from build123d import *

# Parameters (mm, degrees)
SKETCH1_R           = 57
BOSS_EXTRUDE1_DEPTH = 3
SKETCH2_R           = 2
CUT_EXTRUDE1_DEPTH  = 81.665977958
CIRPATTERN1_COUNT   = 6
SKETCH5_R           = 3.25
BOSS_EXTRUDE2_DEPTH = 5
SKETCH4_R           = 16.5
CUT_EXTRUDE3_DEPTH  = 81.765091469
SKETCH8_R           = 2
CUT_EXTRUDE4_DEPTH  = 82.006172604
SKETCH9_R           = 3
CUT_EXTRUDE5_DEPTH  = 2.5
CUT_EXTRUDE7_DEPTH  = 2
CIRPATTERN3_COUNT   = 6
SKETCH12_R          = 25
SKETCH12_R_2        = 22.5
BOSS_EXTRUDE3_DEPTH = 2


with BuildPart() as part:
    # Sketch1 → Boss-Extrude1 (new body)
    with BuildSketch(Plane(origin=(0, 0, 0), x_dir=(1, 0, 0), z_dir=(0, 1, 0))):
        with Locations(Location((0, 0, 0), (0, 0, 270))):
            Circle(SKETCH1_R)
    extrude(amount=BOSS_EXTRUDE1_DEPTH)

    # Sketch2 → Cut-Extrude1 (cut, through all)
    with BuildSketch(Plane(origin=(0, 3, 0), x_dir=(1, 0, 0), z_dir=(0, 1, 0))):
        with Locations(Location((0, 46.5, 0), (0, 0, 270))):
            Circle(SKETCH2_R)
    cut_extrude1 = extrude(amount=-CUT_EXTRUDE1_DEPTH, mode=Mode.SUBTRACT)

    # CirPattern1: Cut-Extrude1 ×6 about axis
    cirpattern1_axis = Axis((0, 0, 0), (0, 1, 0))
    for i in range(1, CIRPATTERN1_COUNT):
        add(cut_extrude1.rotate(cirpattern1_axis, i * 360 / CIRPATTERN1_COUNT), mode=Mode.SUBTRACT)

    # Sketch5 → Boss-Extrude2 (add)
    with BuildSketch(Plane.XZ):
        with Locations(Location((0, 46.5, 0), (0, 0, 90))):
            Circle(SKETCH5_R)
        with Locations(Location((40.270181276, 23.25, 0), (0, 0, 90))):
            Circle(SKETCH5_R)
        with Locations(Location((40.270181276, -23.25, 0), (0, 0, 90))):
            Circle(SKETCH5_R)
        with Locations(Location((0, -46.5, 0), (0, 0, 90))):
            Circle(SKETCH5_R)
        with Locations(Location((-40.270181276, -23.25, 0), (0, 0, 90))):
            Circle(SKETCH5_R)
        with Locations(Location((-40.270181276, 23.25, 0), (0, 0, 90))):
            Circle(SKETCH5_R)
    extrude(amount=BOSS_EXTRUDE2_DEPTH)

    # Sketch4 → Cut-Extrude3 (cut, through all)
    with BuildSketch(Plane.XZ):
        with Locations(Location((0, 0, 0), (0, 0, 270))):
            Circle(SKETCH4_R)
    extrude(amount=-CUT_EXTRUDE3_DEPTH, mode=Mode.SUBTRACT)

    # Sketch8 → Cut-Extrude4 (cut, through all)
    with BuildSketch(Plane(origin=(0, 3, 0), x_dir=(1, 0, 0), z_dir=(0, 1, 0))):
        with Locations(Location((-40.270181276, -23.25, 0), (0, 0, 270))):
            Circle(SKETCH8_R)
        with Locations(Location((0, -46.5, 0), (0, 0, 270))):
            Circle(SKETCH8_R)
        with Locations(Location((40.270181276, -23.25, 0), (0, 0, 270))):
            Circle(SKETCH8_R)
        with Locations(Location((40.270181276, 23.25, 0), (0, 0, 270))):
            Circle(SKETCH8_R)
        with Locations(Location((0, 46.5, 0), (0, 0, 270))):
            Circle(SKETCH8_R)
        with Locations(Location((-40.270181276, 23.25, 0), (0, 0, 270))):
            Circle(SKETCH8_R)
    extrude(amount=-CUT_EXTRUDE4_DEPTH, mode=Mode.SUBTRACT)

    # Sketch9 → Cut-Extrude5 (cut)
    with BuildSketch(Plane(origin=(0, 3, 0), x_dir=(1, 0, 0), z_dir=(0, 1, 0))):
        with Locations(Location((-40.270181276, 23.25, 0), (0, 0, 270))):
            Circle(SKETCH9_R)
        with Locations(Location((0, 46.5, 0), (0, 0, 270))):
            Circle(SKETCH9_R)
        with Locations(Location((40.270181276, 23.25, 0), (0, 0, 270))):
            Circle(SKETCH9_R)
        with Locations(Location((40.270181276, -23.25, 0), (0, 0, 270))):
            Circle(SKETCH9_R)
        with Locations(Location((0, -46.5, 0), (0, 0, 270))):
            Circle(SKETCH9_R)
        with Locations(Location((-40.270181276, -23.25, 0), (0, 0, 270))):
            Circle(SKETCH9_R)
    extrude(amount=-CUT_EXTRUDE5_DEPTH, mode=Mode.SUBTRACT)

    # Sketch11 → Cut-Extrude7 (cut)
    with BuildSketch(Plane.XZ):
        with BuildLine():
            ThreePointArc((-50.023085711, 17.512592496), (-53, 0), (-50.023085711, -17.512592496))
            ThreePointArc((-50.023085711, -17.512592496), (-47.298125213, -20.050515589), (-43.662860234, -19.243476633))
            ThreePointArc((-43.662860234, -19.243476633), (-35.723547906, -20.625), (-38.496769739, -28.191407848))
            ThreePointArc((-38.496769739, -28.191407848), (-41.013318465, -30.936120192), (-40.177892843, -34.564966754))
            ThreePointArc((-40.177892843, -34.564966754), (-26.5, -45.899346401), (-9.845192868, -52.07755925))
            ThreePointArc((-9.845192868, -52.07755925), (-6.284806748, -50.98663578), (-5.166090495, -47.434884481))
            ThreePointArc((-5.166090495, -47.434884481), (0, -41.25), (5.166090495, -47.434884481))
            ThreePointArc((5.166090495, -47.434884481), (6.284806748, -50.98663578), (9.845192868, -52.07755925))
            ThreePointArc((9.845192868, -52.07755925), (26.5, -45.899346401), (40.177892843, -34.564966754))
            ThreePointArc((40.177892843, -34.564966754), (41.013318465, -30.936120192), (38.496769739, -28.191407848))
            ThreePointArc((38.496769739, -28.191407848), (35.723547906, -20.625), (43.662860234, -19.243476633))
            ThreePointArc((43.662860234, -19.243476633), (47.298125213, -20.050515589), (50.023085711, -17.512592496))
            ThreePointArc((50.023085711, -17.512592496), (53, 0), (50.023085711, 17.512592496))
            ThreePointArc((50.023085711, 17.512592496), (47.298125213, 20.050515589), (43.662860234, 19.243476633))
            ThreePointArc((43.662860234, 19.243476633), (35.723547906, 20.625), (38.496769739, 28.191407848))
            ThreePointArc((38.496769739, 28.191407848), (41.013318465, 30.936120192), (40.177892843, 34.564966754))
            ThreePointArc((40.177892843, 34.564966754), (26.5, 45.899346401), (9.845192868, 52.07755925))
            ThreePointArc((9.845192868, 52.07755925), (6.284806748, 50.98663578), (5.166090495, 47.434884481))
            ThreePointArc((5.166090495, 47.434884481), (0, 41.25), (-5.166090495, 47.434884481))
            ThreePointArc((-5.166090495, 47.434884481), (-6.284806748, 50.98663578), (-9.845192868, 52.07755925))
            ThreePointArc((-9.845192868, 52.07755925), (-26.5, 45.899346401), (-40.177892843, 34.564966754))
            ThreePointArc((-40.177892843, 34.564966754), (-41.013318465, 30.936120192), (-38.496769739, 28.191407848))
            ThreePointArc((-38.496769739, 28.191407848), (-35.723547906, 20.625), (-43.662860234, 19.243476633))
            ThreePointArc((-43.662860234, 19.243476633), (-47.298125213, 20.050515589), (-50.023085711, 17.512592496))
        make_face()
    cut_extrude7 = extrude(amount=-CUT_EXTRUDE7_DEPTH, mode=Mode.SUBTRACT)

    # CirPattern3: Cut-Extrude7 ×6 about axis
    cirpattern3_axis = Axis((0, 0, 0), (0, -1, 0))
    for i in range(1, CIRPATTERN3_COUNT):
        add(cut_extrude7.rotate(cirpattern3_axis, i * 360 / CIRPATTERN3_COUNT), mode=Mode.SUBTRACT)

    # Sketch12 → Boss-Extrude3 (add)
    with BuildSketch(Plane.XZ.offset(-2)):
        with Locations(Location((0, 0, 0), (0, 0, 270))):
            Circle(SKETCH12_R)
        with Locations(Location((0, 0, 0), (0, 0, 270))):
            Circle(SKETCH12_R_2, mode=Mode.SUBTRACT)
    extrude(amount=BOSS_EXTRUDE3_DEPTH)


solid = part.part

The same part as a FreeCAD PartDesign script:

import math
import FreeCAD as App
import Part
import Sketcher

V = App.Vector

doc = App.newDocument("Part")
body = doc.addObject("PartDesign::Body", "Body")

# Sketch on XZ plane
sketch1 = body.newObject("Sketcher::SketchObject", "Sketch")
sketch1.AttachmentSupport = (doc.getObject("XZ_Plane"), [""])
sketch1.MapMode = "FlatFace"
sketch1.addGeometry(Part.Circle(V(0, 0, 0), V(0, 0, 1), 57), False)
sketch1.addConstraint([
    Sketcher.Constraint("Coincident", 0, 3, -1, 1),
    Sketcher.Constraint("Diameter", 0, 114.0),
])
pad1 = body.newObject("PartDesign::Pad", "Pad")
pad1.Profile = sketch1
pad1.Length = 3
pad1.Reversed = True

# Sketch on XZ plane
sketch2 = body.newObject("Sketcher::SketchObject", "Sketch001")
sketch2.AttachmentSupport = (doc.getObject("XZ_Plane"), [""])
sketch2.MapMode = "FlatFace"
sketch2.AttachmentOffset = App.Placement(V(0, 0, -3), App.Rotation())
sketch2.addGeometry(Part.Circle(V(0, -46.5, 0), V(0, 0, 1), 2), False)
sketch2.addConstraint([
    Sketcher.Constraint("PointOnObject", 0, 3, -2),
    Sketcher.Constraint("Diameter", 0, 4.0),
    Sketcher.Constraint("DistanceY", 0, 3, -1, 1, 46.5),
])
pocket1 = body.newObject("PartDesign::Pocket", "Pocket")
pocket1.Profile = sketch2
pocket1.Type = "ThroughAll"
pocket1.Reversed = True
doc.recompute()

polarpattern = body.newObject("PartDesign::PolarPattern", "PolarPattern")
polarpattern.Originals = [pocket1]
polarpattern.Axis = (doc.getObject("Y_Axis"), [""])
polarpattern.Angle = 360
polarpattern.Occurrences = 6
body.Tip = polarpattern

# Sketch on XZ plane
sketch3 = body.newObject("Sketcher::SketchObject", "Sketch002")
sketch3.AttachmentSupport = (doc.getObject("XZ_Plane"), [""])
sketch3.MapMode = "FlatFace"
sketch3.addGeometry([
    Part.Circle(V(0, 46.5, 0), V(0, 0, 1), 3.2),  # 0
    Part.Circle(V(40.3, 23.2, 0), V(0, 0, 1), 3.2),  # 1
    Part.Circle(V(40.3, -23.2, 0), V(0, 0, 1), 3.2),  # 2
    Part.Circle(V(0, -46.5, 0), V(0, 0, 1), 3.2),  # 3
    Part.Circle(V(-40.3, -23.2, 0), V(0, 0, 1), 3.2),  # 4
    Part.Circle(V(-40.3, 23.2, 0), V(0, 0, 1), 3.2),  # 5
], False)
sketch3.addConstraint([
    Sketcher.Constraint("Equal", 0, 1),
    Sketcher.Constraint("Equal", 1, 2),
    Sketcher.Constraint("Equal", 2, 3),
    Sketcher.Constraint("Equal", 3, 4),
    Sketcher.Constraint("Equal", 4, 5),
    Sketcher.Constraint("Symmetric", 0, 3, 3, 3, -1, 1),
    Sketcher.Constraint("Symmetric", 1, 3, 4, 3, -1, 1),
    Sketcher.Constraint("Symmetric", 2, 3, 5, 3, -1, 1),
    Sketcher.Constraint("Symmetric", 2, 3, 4, 3, -2),
    Sketcher.Constraint("PointOnObject", 0, 3, -2),
    Sketcher.Constraint("Diameter", 0, 6.5),
    Sketcher.Constraint("DistanceY", 3, 3, 0, 3, 93.0),
    Sketcher.Constraint("DistanceY", 2, 3, 1, 3, 46.5),
    Sketcher.Constraint("DistanceX", -1, 1, 1, 3, 40.270181),
])
pad2 = body.newObject("PartDesign::Pad", "Pad001")
pad2.Profile = sketch3
pad2.Length = 5

# Sketch on XZ plane
sketch4 = body.newObject("Sketcher::SketchObject", "Sketch003")
sketch4.AttachmentSupport = (doc.getObject("XZ_Plane"), [""])
sketch4.MapMode = "FlatFace"
sketch4.addGeometry(Part.Circle(V(0, 0, 0), V(0, 0, 1), 16), False)
sketch4.addConstraint([
    Sketcher.Constraint("Coincident", 0, 3, -1, 1),
    Sketcher.Constraint("Diameter", 0, 33.0),
])
pocket2 = body.newObject("PartDesign::Pocket", "Pocket001")
pocket2.Profile = sketch4
pocket2.Type = "ThroughAll"

# Sketch on XZ plane
sketch5 = body.newObject("Sketcher::SketchObject", "Sketch004")
sketch5.AttachmentSupport = (doc.getObject("XZ_Plane"), [""])
sketch5.MapMode = "FlatFace"
sketch5.AttachmentOffset = App.Placement(V(0, 0, -3), App.Rotation())
sketch5.addGeometry([
    Part.Circle(V(-40.3, 23.2, 0), V(0, 0, 1), 2),  # 0
    Part.Circle(V(0, 46.5, 0), V(0, 0, 1), 2),  # 1
    Part.Circle(V(40.3, 23.2, 0), V(0, 0, 1), 2),  # 2
    Part.Circle(V(40.3, -23.2, 0), V(0, 0, 1), 2),  # 3
    Part.Circle(V(0, -46.5, 0), V(0, 0, 1), 2),  # 4
    Part.Circle(V(-40.3, -23.2, 0), V(0, 0, 1), 2),  # 5
], False)
sketch5.addConstraint([
    Sketcher.Constraint("Equal", 0, 1),
    Sketcher.Constraint("Equal", 1, 2),
    Sketcher.Constraint("Equal", 2, 3),
    Sketcher.Constraint("Equal", 3, 4),
    Sketcher.Constraint("Equal", 4, 5),
    Sketcher.Constraint("Symmetric", 0, 3, 3, 3, -1, 1),
    Sketcher.Constraint("Symmetric", 1, 3, 4, 3, -1, 1),
    Sketcher.Constraint("Symmetric", 2, 3, 5, 3, -1, 1),
    Sketcher.Constraint("Symmetric", 0, 3, 2, 3, -2),
    Sketcher.Constraint("PointOnObject", 1, 3, -2),
    Sketcher.Constraint("Diameter", 0, 4.0),
    Sketcher.Constraint("DistanceY", 4, 3, 1, 3, 93.0),
    Sketcher.Constraint("DistanceY", 3, 3, 2, 3, 46.5),
    Sketcher.Constraint("DistanceX", 0, 3, -1, 1, 40.270181),
])
pocket3 = body.newObject("PartDesign::Pocket", "Pocket002")
pocket3.Profile = sketch5
pocket3.Type = "ThroughAll"
pocket3.Reversed = True

# Sketch on XZ plane
sketch6 = body.newObject("Sketcher::SketchObject", "Sketch005")
sketch6.AttachmentSupport = (doc.getObject("XZ_Plane"), [""])
sketch6.MapMode = "FlatFace"
sketch6.AttachmentOffset = App.Placement(V(0, 0, -3), App.Rotation())
sketch6.addGeometry([
    Part.Circle(V(-40.3, -23.2, 0), V(0, 0, 1), 3),  # 0
    Part.Circle(V(0, -46.5, 0), V(0, 0, 1), 3),  # 1
    Part.Circle(V(40.3, -23.2, 0), V(0, 0, 1), 3),  # 2
    Part.Circle(V(40.3, 23.2, 0), V(0, 0, 1), 3),  # 3
    Part.Circle(V(0, 46.5, 0), V(0, 0, 1), 3),  # 4
    Part.Circle(V(-40.3, 23.2, 0), V(0, 0, 1), 3),  # 5
], False)
sketch6.addConstraint([
    Sketcher.Constraint("Equal", 0, 1),
    Sketcher.Constraint("Equal", 1, 2),
    Sketcher.Constraint("Equal", 2, 3),
    Sketcher.Constraint("Equal", 3, 4),
    Sketcher.Constraint("Equal", 4, 5),
    Sketcher.Constraint("Symmetric", 0, 3, 3, 3, -1, 1),
    Sketcher.Constraint("Symmetric", 1, 3, 4, 3, -1, 1),
    Sketcher.Constraint("Symmetric", 2, 3, 5, 3, -1, 1),
    Sketcher.Constraint("Symmetric", 0, 3, 2, 3, -2),
    Sketcher.Constraint("PointOnObject", 1, 3, -2),
    Sketcher.Constraint("Diameter", 0, 6.0),
    Sketcher.Constraint("DistanceY", 1, 3, 4, 3, 93.0),
    Sketcher.Constraint("DistanceY", 2, 3, 3, 3, 46.5),
    Sketcher.Constraint("DistanceX", 0, 3, -1, 1, 40.270181),
])
pocket4 = body.newObject("PartDesign::Pocket", "Pocket003")
pocket4.Profile = sketch6
pocket4.Length = 2.5
pocket4.Reversed = True

# Sketch on XZ plane
sketch7 = body.newObject("Sketcher::SketchObject", "Sketch006")
sketch7.AttachmentSupport = (doc.getObject("XZ_Plane"), [""])
sketch7.MapMode = "FlatFace"
sketch7.addGeometry([
    Part.ArcOfCircle(Part.Circle(V(0, 0, 0), V(0, 0, 1), 53), math.radians(161), math.radians(199)),  # 0
    Part.ArcOfCircle(Part.Circle(V(-46.2, -16.2, 0), V(0, 0, 1), 4), math.radians(-161), math.radians(-50)),  # 1
    Part.ArcOfCircle(Part.Circle(V(-40.3, -23.2, 0), V(0, 0, 1), 5.2), math.radians(-70), math.radians(130)),  # 2
    Part.ArcOfCircle(Part.Circle(V(-37.1, -32, 0), V(0, 0, 1), 4), math.radians(110), math.radians(221)),  # 3
    Part.ArcOfCircle(Part.Circle(V(0, 0, 0), V(0, 0, 1), 53), math.radians(-139), math.radians(-101)),  # 4
    Part.ArcOfCircle(Part.Circle(V(-9.1, -48.1, 0), V(0, 0, 1), 4), math.radians(-101), math.radians(10)),  # 5
    Part.ArcOfCircle(Part.Circle(V(0, -46.5, 0), V(0, 0, 1), 5.2), math.radians(-10), math.radians(190)),  # 6
    Part.ArcOfCircle(Part.Circle(V(9.1, -48.1, 0), V(0, 0, 1), 4), math.radians(170), math.radians(281)),  # 7
    Part.ArcOfCircle(Part.Circle(V(0, 0, 0), V(0, 0, 1), 53), math.radians(-79), math.radians(-41)),  # 8
    Part.ArcOfCircle(Part.Circle(V(37.1, -32, 0), V(0, 0, 1), 4), math.radians(-41), math.radians(70)),  # 9
    Part.ArcOfCircle(Part.Circle(V(40.3, -23.2, 0), V(0, 0, 1), 5.2), math.radians(50), math.radians(250)),  # 10
    Part.ArcOfCircle(Part.Circle(V(46.2, -16.2, 0), V(0, 0, 1), 4), math.radians(-130), math.radians(-19)),  # 11
    Part.ArcOfCircle(Part.Circle(V(0, 0, 0), V(0, 0, 1), 53), math.radians(-19), math.radians(19)),  # 12
    Part.ArcOfCircle(Part.Circle(V(46.2, 16.2, 0), V(0, 0, 1), 4), math.radians(19), math.radians(130)),  # 13
    Part.ArcOfCircle(Part.Circle(V(40.3, 23.2, 0), V(0, 0, 1), 5.2), math.radians(110), math.radians(310)),  # 14
    Part.ArcOfCircle(Part.Circle(V(37.1, 32, 0), V(0, 0, 1), 4), math.radians(-70), math.radians(41)),  # 15
    Part.ArcOfCircle(Part.Circle(V(0, 0, 0), V(0, 0, 1), 53), math.radians(41), math.radians(79)),  # 16
    Part.ArcOfCircle(Part.Circle(V(9.1, 48.1, 0), V(0, 0, 1), 4), math.radians(79), math.radians(190)),  # 17
    Part.ArcOfCircle(Part.Circle(V(0, 46.5, 0), V(0, 0, 1), 5.2), math.radians(170), math.radians(370)),  # 18
    Part.ArcOfCircle(Part.Circle(V(-9.1, 48.1, 0), V(0, 0, 1), 4), math.radians(-10), math.radians(101)),  # 19
    Part.ArcOfCircle(Part.Circle(V(0, 0, 0), V(0, 0, 1), 53), math.radians(101), math.radians(139)),  # 20
    Part.ArcOfCircle(Part.Circle(V(-37.1, 32, 0), V(0, 0, 1), 4), math.radians(139), math.radians(250)),  # 21
    Part.ArcOfCircle(Part.Circle(V(-40.3, 23.2, 0), V(0, 0, 1), 5.2), math.radians(-130), math.radians(70)),  # 22
    Part.ArcOfCircle(Part.Circle(V(-46.2, 16.2, 0), V(0, 0, 1), 4), math.radians(50), math.radians(161)),  # 23
], False)
sketch7.addConstraint([
    Sketcher.Constraint("Tangent", 0, 2, 1, 1),
    Sketcher.Constraint("Tangent", 1, 2, 2, 2),
    Sketcher.Constraint("Tangent", 2, 1, 3, 1),
    Sketcher.Constraint("Tangent", 3, 2, 4, 1),
    Sketcher.Constraint("Tangent", 4, 2, 5, 1),
    Sketcher.Constraint("Tangent", 5, 2, 6, 2),
    Sketcher.Constraint("Tangent", 6, 1, 7, 1),
    Sketcher.Constraint("Tangent", 7, 2, 8, 1),
    Sketcher.Constraint("Tangent", 8, 2, 9, 1),
    Sketcher.Constraint("Tangent", 9, 2, 10, 2),
    Sketcher.Constraint("Tangent", 10, 1, 11, 1),
    Sketcher.Constraint("Tangent", 11, 2, 12, 1),
    Sketcher.Constraint("Tangent", 12, 2, 13, 1),
    Sketcher.Constraint("Tangent", 13, 2, 14, 2),
    Sketcher.Constraint("Tangent", 14, 1, 15, 1),
    Sketcher.Constraint("Tangent", 15, 2, 16, 1),
    Sketcher.Constraint("Tangent", 16, 2, 17, 1),
    Sketcher.Constraint("Tangent", 17, 2, 18, 2),
    Sketcher.Constraint("Tangent", 18, 1, 19, 1),
    Sketcher.Constraint("Tangent", 19, 2, 20, 1),
    Sketcher.Constraint("Tangent", 20, 2, 21, 1),
    Sketcher.Constraint("Tangent", 21, 2, 22, 2),
    Sketcher.Constraint("Tangent", 22, 1, 23, 1),
    Sketcher.Constraint("Tangent", 23, 2, 0, 1),
    Sketcher.Constraint("Coincident", 0, 3, -1, 1),
    Sketcher.Constraint("Coincident", 4, 3, -1, 1),
    Sketcher.Constraint("Coincident", 8, 3, -1, 1),
    Sketcher.Constraint("Coincident", 12, 3, -1, 1),
    Sketcher.Constraint("Coincident", 16, 3, -1, 1),
    Sketcher.Constraint("Coincident", 20, 3, -1, 1),
    Sketcher.Constraint("Equal", 1, 3),
    Sketcher.Constraint("Equal", 0, 4),
    Sketcher.Constraint("Equal", 3, 5),
    Sketcher.Constraint("Equal", 2, 6),
    Sketcher.Constraint("Equal", 5, 7),
    Sketcher.Constraint("Equal", 4, 8),
    Sketcher.Constraint("Equal", 7, 9),
    Sketcher.Constraint("Equal", 6, 10),
    Sketcher.Constraint("Equal", 9, 11),
    Sketcher.Constraint("Equal", 8, 12),
    Sketcher.Constraint("Equal", 11, 13),
    Sketcher.Constraint("Equal", 10, 14),
    Sketcher.Constraint("Equal", 13, 15),
    Sketcher.Constraint("Equal", 12, 16),
    Sketcher.Constraint("Equal", 15, 17),
    Sketcher.Constraint("Equal", 14, 18),
    Sketcher.Constraint("Equal", 17, 19),
    Sketcher.Constraint("Equal", 16, 20),
    Sketcher.Constraint("Equal", 19, 21),
    Sketcher.Constraint("Equal", 18, 22),
    Sketcher.Constraint("Equal", 21, 23),
    Sketcher.Constraint("Symmetric", 2, 3, 14, 3, -1, 1),
    Sketcher.Constraint("Symmetric", 6, 3, 18, 3, -1, 1),
    Sketcher.Constraint("Symmetric", 10, 3, 22, 3, -1, 1),
    Sketcher.Constraint("Symmetric", 2, 3, 10, 3, -2),
    Sketcher.Constraint("PointOnObject", 6, 3, -2),
    Sketcher.Constraint("Radius", 0, 53.0),
    Sketcher.Constraint("Radius", 1, 4.0),
    Sketcher.Constraint("Radius", 2, 5.25),
    Sketcher.Constraint("DistanceY", 6, 3, -1, 1, 46.5),
    Sketcher.Constraint("DistanceY", 10, 3, 14, 3, 46.5),
    Sketcher.Constraint("DistanceX", 3, 3, -1, 1, 37.145599),
])
pocket5 = body.newObject("PartDesign::Pocket", "Pocket004")
pocket5.Profile = sketch7
pocket5.Length = 2
doc.recompute()

polarpattern2 = body.newObject("PartDesign::PolarPattern", "PolarPattern001")
polarpattern2.Originals = [pocket5]
polarpattern2.Axis = (doc.getObject("Y_Axis"), [""])
polarpattern2.Angle = 360
polarpattern2.Occurrences = 6
body.Tip = polarpattern2

# Sketch on XZ plane
sketch8 = body.newObject("Sketcher::SketchObject", "Sketch007")
sketch8.AttachmentSupport = (doc.getObject("XZ_Plane"), [""])
sketch8.MapMode = "FlatFace"
sketch8.AttachmentOffset = App.Placement(V(0, 0, -2), App.Rotation())
sketch8.addGeometry([
    Part.Circle(V(0, 0, 0), V(0, 0, 1), 25),
    Part.Circle(V(0, 0, 0), V(0, 0, 1), 22),
], False)
sketch8.addConstraint([
    Sketcher.Constraint("Coincident", 0, 3, -1, 1),
    Sketcher.Constraint("Coincident", 1, 3, -1, 1),
    Sketcher.Constraint("Diameter", 0, 50.0),
    Sketcher.Constraint("Diameter", 1, 45.0),
])
pad3 = body.newObject("PartDesign::Pad", "Pad002")
pad3.Profile = sketch8
pad3.Length = 2

doc.recompute()
